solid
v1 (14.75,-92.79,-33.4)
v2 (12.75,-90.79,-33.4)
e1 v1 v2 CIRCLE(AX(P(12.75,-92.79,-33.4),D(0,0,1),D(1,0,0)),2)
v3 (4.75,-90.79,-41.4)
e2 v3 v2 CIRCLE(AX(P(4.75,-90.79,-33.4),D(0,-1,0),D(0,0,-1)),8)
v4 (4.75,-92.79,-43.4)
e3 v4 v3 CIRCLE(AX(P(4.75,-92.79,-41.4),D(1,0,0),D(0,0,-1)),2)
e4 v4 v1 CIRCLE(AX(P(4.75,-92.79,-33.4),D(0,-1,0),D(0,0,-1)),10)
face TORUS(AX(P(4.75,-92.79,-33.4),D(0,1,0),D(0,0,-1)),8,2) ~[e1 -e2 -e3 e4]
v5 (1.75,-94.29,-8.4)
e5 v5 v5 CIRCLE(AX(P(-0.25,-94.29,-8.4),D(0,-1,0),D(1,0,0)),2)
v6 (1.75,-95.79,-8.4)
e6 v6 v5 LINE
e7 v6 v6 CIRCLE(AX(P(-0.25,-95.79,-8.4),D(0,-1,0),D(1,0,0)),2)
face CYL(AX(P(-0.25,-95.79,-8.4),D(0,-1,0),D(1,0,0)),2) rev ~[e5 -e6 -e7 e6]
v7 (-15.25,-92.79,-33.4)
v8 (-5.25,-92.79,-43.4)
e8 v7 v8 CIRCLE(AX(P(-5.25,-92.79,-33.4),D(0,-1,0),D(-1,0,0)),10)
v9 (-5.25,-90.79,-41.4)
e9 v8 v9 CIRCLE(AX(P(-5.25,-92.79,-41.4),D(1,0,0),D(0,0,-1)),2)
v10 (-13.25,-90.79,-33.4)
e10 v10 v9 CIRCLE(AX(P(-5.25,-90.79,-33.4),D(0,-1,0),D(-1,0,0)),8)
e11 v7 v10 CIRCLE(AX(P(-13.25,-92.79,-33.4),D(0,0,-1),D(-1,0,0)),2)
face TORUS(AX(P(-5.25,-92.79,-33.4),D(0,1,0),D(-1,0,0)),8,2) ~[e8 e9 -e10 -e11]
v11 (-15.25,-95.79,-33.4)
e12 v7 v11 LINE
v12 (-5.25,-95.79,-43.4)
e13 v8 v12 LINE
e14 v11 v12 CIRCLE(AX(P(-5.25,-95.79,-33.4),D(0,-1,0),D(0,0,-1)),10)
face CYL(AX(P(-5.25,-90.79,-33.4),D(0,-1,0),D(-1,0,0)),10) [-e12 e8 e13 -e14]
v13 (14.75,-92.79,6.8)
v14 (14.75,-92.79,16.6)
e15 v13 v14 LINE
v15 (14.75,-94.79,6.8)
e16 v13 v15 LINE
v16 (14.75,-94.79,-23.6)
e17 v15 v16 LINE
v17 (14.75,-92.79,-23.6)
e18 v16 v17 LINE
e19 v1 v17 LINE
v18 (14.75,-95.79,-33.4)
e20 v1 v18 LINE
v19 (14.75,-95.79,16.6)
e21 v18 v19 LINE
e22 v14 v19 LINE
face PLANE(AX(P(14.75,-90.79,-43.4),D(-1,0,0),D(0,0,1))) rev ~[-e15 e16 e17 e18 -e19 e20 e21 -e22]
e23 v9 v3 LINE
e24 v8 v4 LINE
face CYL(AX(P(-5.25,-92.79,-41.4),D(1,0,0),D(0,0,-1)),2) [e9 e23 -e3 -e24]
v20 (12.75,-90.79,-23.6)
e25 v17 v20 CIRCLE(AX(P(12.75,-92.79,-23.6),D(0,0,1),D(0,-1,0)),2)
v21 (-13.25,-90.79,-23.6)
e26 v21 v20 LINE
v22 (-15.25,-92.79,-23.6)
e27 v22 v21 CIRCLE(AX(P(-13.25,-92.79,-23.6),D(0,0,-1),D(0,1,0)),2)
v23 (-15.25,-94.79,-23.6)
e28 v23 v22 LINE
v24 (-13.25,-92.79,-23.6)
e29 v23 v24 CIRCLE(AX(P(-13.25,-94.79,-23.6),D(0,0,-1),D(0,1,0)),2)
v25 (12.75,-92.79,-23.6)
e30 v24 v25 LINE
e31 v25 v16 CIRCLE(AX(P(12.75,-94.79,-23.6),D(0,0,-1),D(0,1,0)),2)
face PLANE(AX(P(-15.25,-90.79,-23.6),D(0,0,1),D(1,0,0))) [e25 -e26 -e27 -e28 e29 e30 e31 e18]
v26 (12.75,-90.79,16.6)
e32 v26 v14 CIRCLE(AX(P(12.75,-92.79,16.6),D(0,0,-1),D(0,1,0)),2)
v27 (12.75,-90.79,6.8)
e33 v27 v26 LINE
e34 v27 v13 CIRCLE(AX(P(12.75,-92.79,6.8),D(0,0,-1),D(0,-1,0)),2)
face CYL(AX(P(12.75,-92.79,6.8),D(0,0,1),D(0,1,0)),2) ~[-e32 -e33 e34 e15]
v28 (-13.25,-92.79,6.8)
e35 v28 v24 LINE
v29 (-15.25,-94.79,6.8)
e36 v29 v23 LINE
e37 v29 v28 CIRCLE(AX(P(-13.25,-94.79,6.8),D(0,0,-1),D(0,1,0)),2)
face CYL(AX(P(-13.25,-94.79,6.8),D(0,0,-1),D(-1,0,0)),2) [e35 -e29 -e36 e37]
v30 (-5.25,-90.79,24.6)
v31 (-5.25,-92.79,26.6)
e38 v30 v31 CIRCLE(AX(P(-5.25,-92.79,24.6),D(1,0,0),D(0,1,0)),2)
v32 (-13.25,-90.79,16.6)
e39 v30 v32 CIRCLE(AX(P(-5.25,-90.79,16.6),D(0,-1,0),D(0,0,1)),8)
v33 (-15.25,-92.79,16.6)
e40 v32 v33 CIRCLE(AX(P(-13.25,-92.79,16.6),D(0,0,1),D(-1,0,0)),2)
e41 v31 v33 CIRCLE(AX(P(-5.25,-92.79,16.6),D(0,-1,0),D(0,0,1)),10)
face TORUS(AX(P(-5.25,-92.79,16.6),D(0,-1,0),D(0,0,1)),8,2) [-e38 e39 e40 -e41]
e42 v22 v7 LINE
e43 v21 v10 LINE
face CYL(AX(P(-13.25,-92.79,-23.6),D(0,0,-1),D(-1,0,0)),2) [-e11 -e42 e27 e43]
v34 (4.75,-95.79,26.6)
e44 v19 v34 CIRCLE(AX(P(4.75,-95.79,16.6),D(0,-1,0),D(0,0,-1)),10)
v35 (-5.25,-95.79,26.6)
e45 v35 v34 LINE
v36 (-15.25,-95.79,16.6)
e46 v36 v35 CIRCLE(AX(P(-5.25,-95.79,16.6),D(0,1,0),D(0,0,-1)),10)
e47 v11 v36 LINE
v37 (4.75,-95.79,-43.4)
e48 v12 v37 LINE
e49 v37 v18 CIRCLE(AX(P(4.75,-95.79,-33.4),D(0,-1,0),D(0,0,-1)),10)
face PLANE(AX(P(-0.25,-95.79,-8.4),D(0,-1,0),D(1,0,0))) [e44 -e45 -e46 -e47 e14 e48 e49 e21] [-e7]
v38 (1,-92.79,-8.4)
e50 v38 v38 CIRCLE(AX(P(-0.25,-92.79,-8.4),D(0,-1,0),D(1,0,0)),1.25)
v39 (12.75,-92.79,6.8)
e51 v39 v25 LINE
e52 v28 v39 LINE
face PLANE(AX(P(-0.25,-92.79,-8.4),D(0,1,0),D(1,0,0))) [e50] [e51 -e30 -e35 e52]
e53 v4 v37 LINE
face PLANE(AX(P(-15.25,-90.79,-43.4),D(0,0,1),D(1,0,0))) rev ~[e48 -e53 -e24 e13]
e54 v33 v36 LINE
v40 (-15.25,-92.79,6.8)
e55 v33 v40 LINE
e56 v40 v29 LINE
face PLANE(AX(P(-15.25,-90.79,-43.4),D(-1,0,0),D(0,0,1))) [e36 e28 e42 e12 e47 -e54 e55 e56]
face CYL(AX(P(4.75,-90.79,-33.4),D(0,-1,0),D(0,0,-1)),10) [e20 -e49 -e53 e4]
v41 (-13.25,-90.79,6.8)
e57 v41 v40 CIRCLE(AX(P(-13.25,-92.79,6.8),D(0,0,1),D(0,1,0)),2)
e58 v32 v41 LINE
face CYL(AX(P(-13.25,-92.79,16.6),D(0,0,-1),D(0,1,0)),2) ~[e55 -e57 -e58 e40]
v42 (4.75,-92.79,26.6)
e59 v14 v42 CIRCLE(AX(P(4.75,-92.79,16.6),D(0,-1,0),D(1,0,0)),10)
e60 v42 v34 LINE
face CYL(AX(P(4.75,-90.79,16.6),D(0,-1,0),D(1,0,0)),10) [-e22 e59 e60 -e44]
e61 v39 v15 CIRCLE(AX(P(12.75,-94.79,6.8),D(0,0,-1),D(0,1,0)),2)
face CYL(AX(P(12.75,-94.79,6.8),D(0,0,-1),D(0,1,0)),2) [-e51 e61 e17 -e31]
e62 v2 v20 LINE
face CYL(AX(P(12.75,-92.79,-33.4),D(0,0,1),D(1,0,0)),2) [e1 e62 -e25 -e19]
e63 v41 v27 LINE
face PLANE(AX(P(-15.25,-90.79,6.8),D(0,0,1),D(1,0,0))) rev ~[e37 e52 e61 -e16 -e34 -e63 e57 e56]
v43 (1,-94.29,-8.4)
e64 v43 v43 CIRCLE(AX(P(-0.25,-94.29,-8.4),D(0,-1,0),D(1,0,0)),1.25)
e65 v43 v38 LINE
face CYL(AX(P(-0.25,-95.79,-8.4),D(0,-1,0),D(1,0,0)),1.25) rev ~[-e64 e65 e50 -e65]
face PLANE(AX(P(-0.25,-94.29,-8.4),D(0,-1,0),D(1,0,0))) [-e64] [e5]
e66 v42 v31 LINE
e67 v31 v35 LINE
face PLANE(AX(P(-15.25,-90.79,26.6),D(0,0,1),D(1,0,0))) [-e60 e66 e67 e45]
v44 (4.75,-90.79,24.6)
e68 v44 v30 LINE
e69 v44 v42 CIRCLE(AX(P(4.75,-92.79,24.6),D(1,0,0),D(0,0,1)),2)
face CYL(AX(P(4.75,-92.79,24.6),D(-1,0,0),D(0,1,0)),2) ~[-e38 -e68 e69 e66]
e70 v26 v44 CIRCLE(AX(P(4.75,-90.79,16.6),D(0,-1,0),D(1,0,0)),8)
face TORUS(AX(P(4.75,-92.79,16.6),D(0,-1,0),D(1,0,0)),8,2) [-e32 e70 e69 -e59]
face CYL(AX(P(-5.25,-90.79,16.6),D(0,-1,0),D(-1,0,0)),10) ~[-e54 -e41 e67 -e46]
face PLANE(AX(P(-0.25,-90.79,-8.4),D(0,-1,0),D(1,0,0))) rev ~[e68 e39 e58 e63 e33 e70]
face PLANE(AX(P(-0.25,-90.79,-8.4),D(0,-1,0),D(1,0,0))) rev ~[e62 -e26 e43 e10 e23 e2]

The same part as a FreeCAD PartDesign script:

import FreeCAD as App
import Part
import Sketcher
Q = App.Units.Quantity


def edges_at(feature, points):
    """Names of the edges that pass closest to the given points."""
    edges = feature.Shape.Edges
    near = lambda p: min(range(len(edges)), key=lambda i: edges[i].distToShape(Part.Vertex(*p))[0])
    return sorted({f"Edge{near(p) + 1}" for p in points})


def add_polygon(sketch, points):
    """Adds a closed chain of lines whose ends are joined by coincident constraints."""
    first, n = sketch.GeometryCount, len(points)
    for a, b in zip(points, points[1:] + points[:1]):
        sketch.addGeometry(Part.LineSegment(App.Vector(*a, 0), App.Vector(*b, 0)), False)
    for i in range(n):
        sketch.addConstraint(Sketcher.Constraint("Coincident", first + i, 2, first + (i + 1) % n, 1))

doc = App.newDocument("Part")
body = doc.addObject("PartDesign::Body", "Body")

# Sketch on XZ plane
sketch1 = doc.addObject("Sketcher::SketchObject", "Sketch")
body.addObject(sketch1)
sketch1.AttachmentSupport = (doc.XZ_Plane, [""])
sketch1.MapMode = "FlatFace"
add_polygon(sketch1, [(-15, 35), (-15, -35), (15, -35), (15, 35)])  # lines 0-3
sketch1.addConstraint(Sketcher.Constraint("Vertical", 0))
sketch1.addConstraint(Sketcher.Constraint("Horizontal", 1))
sketch1.addConstraint(Sketcher.Constraint("Vertical", 2))
sketch1.addConstraint(Sketcher.Constraint("Horizontal", 3))
sketch1.addConstraint(Sketcher.Constraint("Symmetric", 0, 2, 2, 2, -1, 1))
sketch1.addConstraint(Sketcher.Constraint("DistanceX", 1, 1, 1, 2, Q("30 mm")))
sketch1.addConstraint(Sketcher.Constraint("DistanceY", 0, 2, 0, 1, Q("70 mm")))
pad1 = doc.addObject("PartDesign::Pad", "Pad")
body.addObject(pad1)
pad1.Profile = sketch1
pad1.Length = 5
doc.recompute()

fillet = doc.addObject("PartDesign::Fillet", "Fillet")
body.addObject(fillet)
fillet.Base = (pad1, edges_at(pad1, [
    (15, -2.5, -35),
    (-15, -2.5, -35),
    (15, -2.5, 35),
    (-15, -2.5, 35),
]))
fillet.Radius = 10

# Sketch on XZ plane
sketch2 = doc.addObject("Sketcher::SketchObject", "Sketch001")
body.addObject(sketch2)
sketch2.AttachmentSupport = (doc.XZ_Plane, [""])
sketch2.MapMode = "FlatFace"
add_polygon(sketch2, [(-15, -15), (-15, 15), (15, 15), (15, -15)])  # lines 0-3
sketch2.addConstraint(Sketcher.Constraint("Vertical", 0))
sketch2.addConstraint(Sketcher.Constraint("Horizontal", 1))
sketch2.addConstraint(Sketcher.Constraint("Vertical", 2))
sketch2.addConstraint(Sketcher.Constraint("Horizontal", 3))
sketch2.addConstraint(Sketcher.Constraint("Symmetric", 0, 2, 2, 2, -1, 1))
sketch2.addConstraint(Sketcher.Constraint("DistanceX", 1, 1, 1, 2, Q("30 mm")))
sketch2.addConstraint(Sketcher.Constraint("DistanceY", 0, 1, 0, 2, Q("30.4 mm")))
pocket1 = doc.addObject("PartDesign::Pocket", "Pocket")
body.addObject(pocket1)
pocket1.Profile = sketch2
pocket1.Length = 2
pocket1.Reversed = True
doc.recompute()

fillet2 = doc.addObject("PartDesign::Fillet", "Fillet001")
body.addObject(fillet2)
fillet2.Base = (pocket1, edges_at(pocket1, [(15, -2, 0), (-15, -2, 0)]))
fillet2.Radius = 2
doc.recompute()

fillet3 = doc.addObject("PartDesign::Fillet", "Fillet002")
body.addObject(fillet3)
fillet3.Base = (fillet2, edges_at(fillet2, [(15, 0, -20.1), (15, 0, 20.1)]))
fillet3.Radius = 2

# Sketch on XZ plane
sketch3 = doc.addObject("Sketcher::SketchObject", "Sketch002")
body.addObject(sketch3)
sketch3.AttachmentSupport = (doc.XZ_Plane, [""])
sketch3.MapMode = "FlatFace"
sketch3.AttachmentOffset = App.Placement(App.Vector(0, 0, 5), App.Rotation())
sketch3.addGeometry(Part.Circle(App.Vector(0, 0, 0), App.Vector(0, 0, 1), 1.2), False)
sketch3.addConstraint(Sketcher.Constraint("Coincident", 0, 3, -1, 1))
sketch3.addConstraint(Sketcher.Constraint("Diameter", 0, Q("2.5 mm")))
pocket2 = doc.addObject("PartDesign::Pocket", "Pocket001")
body.addObject(pocket2)
pocket2.Profile = sketch3
pocket2.Length = 9

# Sketch on XZ plane
sketch4 = doc.addObject("Sketcher::SketchObject", "Sketch003")
body.addObject(sketch4)
sketch4.AttachmentSupport = (doc.XZ_Plane, [""])
sketch4.MapMode = "FlatFace"
sketch4.AttachmentOffset = App.Placement(App.Vector(0, 0, 5), App.Rotation())
sketch4.addGeometry(Part.Circle(App.Vector(0, 0, 0), App.Vector(0, 0, 1), 2), False)
sketch4.addConstraint(Sketcher.Constraint("Coincident", 0, 3, -1, 1))
sketch4.addConstraint(Sketcher.Constraint("Diameter", 0, Q("4 mm")))
pocket3 = doc.addObject("PartDesign::Pocket", "Pocket002")
body.addObject(pocket3)
pocket3.Profile = sketch4
pocket3.Length = 1.5
body2 = doc.addObject("PartDesign::Body", "Body001")
doc.recompute()

body.Placement = App.Placement(App.Vector(-0.25, -90.79, -8.4), App.Rotation(App.Vector(0, 0, 1), 0))
boolean = doc.addObject("PartDesign::Boolean", "Boolean")
body2.addObject(boolean)
boolean.Type = "Fuse"
boolean.addObjects([body])

doc.recompute()
